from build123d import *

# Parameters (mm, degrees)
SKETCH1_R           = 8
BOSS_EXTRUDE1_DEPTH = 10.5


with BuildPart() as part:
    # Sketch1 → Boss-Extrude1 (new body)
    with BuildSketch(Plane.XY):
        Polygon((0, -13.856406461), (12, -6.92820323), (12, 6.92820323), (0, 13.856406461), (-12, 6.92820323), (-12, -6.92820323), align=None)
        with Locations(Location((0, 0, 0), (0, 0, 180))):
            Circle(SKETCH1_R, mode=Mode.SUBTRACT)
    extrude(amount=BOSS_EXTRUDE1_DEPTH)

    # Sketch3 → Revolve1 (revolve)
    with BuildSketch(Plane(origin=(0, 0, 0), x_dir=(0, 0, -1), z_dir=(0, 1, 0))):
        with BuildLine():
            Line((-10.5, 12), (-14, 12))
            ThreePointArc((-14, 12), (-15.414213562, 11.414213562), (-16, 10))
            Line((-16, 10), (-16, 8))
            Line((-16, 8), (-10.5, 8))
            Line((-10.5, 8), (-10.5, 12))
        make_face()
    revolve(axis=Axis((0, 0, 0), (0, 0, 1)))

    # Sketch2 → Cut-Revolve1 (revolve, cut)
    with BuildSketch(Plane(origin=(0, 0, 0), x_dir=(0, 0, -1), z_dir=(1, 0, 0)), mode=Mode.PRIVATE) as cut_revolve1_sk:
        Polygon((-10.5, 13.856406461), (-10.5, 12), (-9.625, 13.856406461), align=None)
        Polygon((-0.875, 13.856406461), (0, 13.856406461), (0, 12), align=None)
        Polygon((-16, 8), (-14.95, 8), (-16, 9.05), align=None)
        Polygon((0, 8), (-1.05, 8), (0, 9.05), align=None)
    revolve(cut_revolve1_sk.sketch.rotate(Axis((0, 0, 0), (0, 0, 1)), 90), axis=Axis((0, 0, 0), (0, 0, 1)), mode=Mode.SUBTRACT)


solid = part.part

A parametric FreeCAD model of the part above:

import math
import FreeCAD as App
import Part
import Sketcher

V = App.Vector
Q = App.Units.Quantity

doc = App.newDocument("Part")
params = doc.addObject("Spreadsheet::Sheet", "Params")
for row, (alias, value) in enumerate([
    ("sketch1_diameter", "16 mm"),
    ("pad1_length", "10.5 mm"),
    ("sketch2_radius", "2 mm"),
    ("sketch2_width", "2 mm"),
    ("sketch2_height", "3.5 mm"),
    ("revolution_angle", "360 deg"),
    ("sketch3_width", "1.05 mm"),
    ("groove_angle", "360 deg"),
], start=1):
    params.set(f"A{row}", alias)
    params.set(f"B{row}", "=" + value)
    params.setAlias(f"B{row}", alias)

body = doc.addObject("PartDesign::Body", "Body")

sketch1 = body.newObject("Sketcher::SketchObject", "Sketch")
sketch1.AttachmentSupport = (doc.getObject("XY_Plane"), [""])
sketch1.MapMode = "FlatFace"
sketch1.addGeometry(Part.LineSegment(V(0, -14, 0), V(12, -7, 0)), False)
sketch1.addGeometry(Part.LineSegment(V(12, -7, 0), V(12, 7, 0)), False)
sketch1.addGeometry(Part.LineSegment(V(12, 7, 0), V(0, 14, 0)), False)
sketch1.addGeometry(Part.LineSegment(V(0, 14, 0), V(-12, 7, 0)), False)
sketch1.addGeometry(Part.LineSegment(V(-12, 7, 0), V(-12, -7, 0)), False)
sketch1.addGeometry(Part.LineSegment(V(-12, -7, 0), V(0, -14, 0)), False)
sketch1.addGeometry(Part.Circle(V(0, 0, 0), V(0, 0, 1), 8), False)
sketch1.addConstraint(Sketcher.Constraint("Coincident", 0, 2, 1, 1))
sketch1.addConstraint(Sketcher.Constraint("Coincident", 1, 2, 2, 1))
sketch1.addConstraint(Sketcher.Constraint("Coincident", 2, 2, 3, 1))
sketch1.addConstraint(Sketcher.Constraint("Coincident", 3, 2, 4, 1))
sketch1.addConstraint(Sketcher.Constraint("Coincident", 4, 2, 5, 1))
sketch1.addConstraint(Sketcher.Constraint("Coincident", 5, 2, 0, 1))
sketch1.addConstraint(Sketcher.Constraint("Vertical", 1))
sketch1.addConstraint(Sketcher.Constraint("Vertical", 4))
sketch1.addConstraint(Sketcher.Constraint("Coincident", 6, 3, -1, 1))
sketch1.addConstraint(Sketcher.Constraint("Symmetric", 0, 2, 3, 2, -1, 1))
sketch1.addConstraint(Sketcher.Constraint("Symmetric", 2, 2, 5, 2, -1, 1))
sketch1.addConstraint(Sketcher.Constraint("PointOnObject", 2, 2, -2))
sketch1.addConstraint(Sketcher.Constraint("Parallel", 2, 5))
sketch1.addConstraint(Sketcher.Constraint("Horizontal", 1, 2, 3, 2))
sketch1.addConstraint(Sketcher.Constraint("Diameter", 6, 16.0))
sketch1.addConstraint(Sketcher.Constraint("Angle", 0, Q("30 deg")))
sketch1.addConstraint(Sketcher.Constraint("DistanceX", -1, 1, 0, 2, 12.0))
sketch1.addConstraint(Sketcher.Constraint("DistanceY", 1, 1, 1, 2, 13.856406))
sketch1.setExpression("Constraints[14]", "Params.sketch1_diameter")
pad1 = body.newObject("PartDesign::Pad", "Pad")
pad1.Profile = sketch1
pad1.setExpression("Length", "Params.pad1_length")

sketch2 = body.newObject("Sketcher::SketchObject", "Sketch001")
sketch2.AttachmentSupport = (doc.getObject("XZ_Plane"), [""])
sketch2.MapMode = "FlatFace"
sketch2.addGeometry(Part.LineSegment(V(-12, 10.5, 0), V(-12, 14, 0)), False)
sketch2.addGeometry(Part.ArcOfCircle(Part.Circle(V(-10, 14, 0), V(0, 0, 1), 2), math.radians(90), math.radians(180)), False)
sketch2.addGeometry(Part.LineSegment(V(-10, 16, 0), V(-8, 16, 0)), False)
sketch2.addGeometry(Part.LineSegment(V(-8, 16, 0), V(-8, 10.5, 0)), False)
sketch2.addGeometry(Part.LineSegment(V(-8, 10.5, 0), V(-12, 10.5, 0)), False)
sketch2.addConstraint(Sketcher.Constraint("Tangent", 0, 2, 1, 2))
sketch2.addConstraint(Sketcher.Constraint("Tangent", 1, 1, 2, 1))
sketch2.addConstraint(Sketcher.Constraint("Coincident", 2, 2, 3, 1))
sketch2.addConstraint(Sketcher.Constraint("Coincident", 3, 2, 4, 1))
sketch2.addConstraint(Sketcher.Constraint("Coincident", 4, 2, 0, 1))
sketch2.addConstraint(Sketcher.Constraint("Vertical", 0))
sketch2.addConstraint(Sketcher.Constraint("Horizontal", 2))
sketch2.addConstraint(Sketcher.Constraint("Vertical", 3))
sketch2.addConstraint(Sketcher.Constraint("Horizontal", 4))
sketch2.addConstraint(Sketcher.Constraint("Radius", 1, 2.0))
sketch2.addConstraint(Sketcher.Constraint("DistanceX", 2, 1, 2, 2, 2.0))
sketch2.addConstraint(Sketcher.Constraint("DistanceY", 0, 1, 0, 2, 3.5))
sketch2.addConstraint(Sketcher.Constraint("DistanceX", 1, 3, -1, 1, 10.0))
sketch2.addConstraint(Sketcher.Constraint("DistanceY", -1, 1, 1, 3, 14.0))
sketch2.setExpression("Constraints[9]", "Params.sketch2_radius")
sketch2.setExpression("Constraints[10]", "Params.sketch2_width")
sketch2.setExpression("Constraints[11]", "Params.sketch2_height")
revolution = body.newObject("PartDesign::Revolution", "Revolution")
revolution.Profile = sketch2
revolution.ReferenceAxis = (sketch2, ["V_Axis"])
revolution.setExpression("Angle", "Params.revolution_angle")

sketch3 = body.newObject("Sketcher::SketchObject", "Sketch002")
sketch3.AttachmentSupport = (doc.getObject("YZ_Plane"), [""])
sketch3.MapMode = "FlatFace"
sketch3.addGeometry(Part.LineSegment(V(13.9, 10.5, 0), V(12, 10.5, 0)), False)
sketch3.addGeometry(Part.LineSegment(V(12, 10.5, 0), V(13.9, 9.6, 0)), False)
sketch3.addGeometry(Part.LineSegment(V(13.9, 9.6, 0), V(13.9, 10.5, 0)), False)
sketch3.addGeometry(Part.LineSegment(V(13.9, 0, 0), V(13.9, 0.9, 0)), False)
sketch3.addGeometry(Part.LineSegment(V(13.9, 0.9, 0), V(12, 0, 0)), False)
sketch3.addGeometry(Part.LineSegment(V(12, 0, 0), V(13.9, 0, 0)), False)
sketch3.addGeometry(Part.LineSegment(V(8, 16, 0), V(8, 14.9, 0)), False)
sketch3.addGeometry(Part.LineSegment(V(8, 14.9, 0), V(9.1, 16, 0)), False)
sketch3.addGeometry(Part.LineSegment(V(9.1, 16, 0), V(8, 16, 0)), False)
sketch3.addGeometry(Part.LineSegment(V(8, 1.1, 0), V(8, 0, 0)), False)
sketch3.addGeometry(Part.LineSegment(V(8, 0, 0), V(9.1, 0, 0)), False)
sketch3.addGeometry(Part.LineSegment(V(9.1, 0, 0), V(8, 1.1, 0)), False)
sketch3.addConstraint(Sketcher.Constraint("Coincident", 0, 2, 1, 1))
sketch3.addConstraint(Sketcher.Constraint("Coincident", 1, 2, 2, 1))
sketch3.addConstraint(Sketcher.Constraint("Coincident", 2, 2, 0, 1))
sketch3.addConstraint(Sketcher.Constraint("Coincident", 3, 2, 4, 1))
sketch3.addConstraint(Sketcher.Constraint("Coincident", 4, 2, 5, 1))
sketch3.addConstraint(Sketcher.Constraint("Coincident", 5, 2, 3, 1))
sketch3.addConstraint(Sketcher.Constraint("Coincident", 6, 2, 7, 1))
sketch3.addConstraint(Sketcher.Constraint("Coincident", 7, 2, 8, 1))
sketch3.addConstraint(Sketcher.Constraint("Coincident", 8, 2, 6, 1))
sketch3.addConstraint(Sketcher.Constraint("Coincident", 9, 2, 10, 1))
sketch3.addConstraint(Sketcher.Constraint("Coincident", 10, 2, 11, 1))
sketch3.addConstraint(Sketcher.Constraint("Coincident", 11, 2, 9, 1))
sketch3.addConstraint(Sketcher.Constraint("Horizontal", 0))
sketch3.addConstraint(Sketcher.Constraint("Vertical", 2))
sketch3.addConstraint(Sketcher.Constraint("Vertical", 3))
sketch3.addConstraint(Sketcher.Constraint("Horizontal", 5))
sketch3.addConstraint(Sketcher.Constraint("Vertical", 6))
sketch3.addConstraint(Sketcher.Constraint("Horizontal", 8))
sketch3.addConstraint(Sketcher.Constraint("Vertical", 9))
sketch3.addConstraint(Sketcher.Constraint("Horizontal", 10))
sketch3.addConstraint(Sketcher.Constraint("PointOnObject", 4, 2, -1))
sketch3.addConstraint(Sketcher.Constraint("PointOnObject", 9, 2, -1))
sketch3.addConstraint(Sketcher.Constraint("Perpendicular", 7, 11))
sketch3.addConstraint(Sketcher.Constraint("Vertical", 2, 2, 3, 2))
sketch3.addConstraint(Sketcher.Constraint("Vertical", 0, 2, 4, 2))
sketch3.addConstraint(Sketcher.Constraint("Vertical", 8, 2, 9, 2))
sketch3.addConstraint(Sketcher.Constraint("Vertical", 7, 2, 10, 2))
sketch3.addConstraint(Sketcher.Constraint("Equal", 2, 3))
sketch3.addConstraint(Sketcher.Constraint("Equal", 10, 6))
sketch3.addConstraint(Sketcher.Constraint("DistanceX", -1, 1, 0, 2, 12.0))
sketch3.addConstraint(Sketcher.Constraint("DistanceX", -1, 1, 6, 2, 8.0))
sketch3.addConstraint(Sketcher.Constraint("DistanceY", -1, 1, 7, 2, 16.0))
sketch3.addConstraint(Sketcher.Constraint("DistanceX", 8, 2, 8, 1, 1.05))
sketch3.addConstraint(Sketcher.Constraint("DistanceY", -1, 1, 0, 2, 10.5))
sketch3.addConstraint(Sketcher.Constraint("DistanceY", 2, 1, 2, 2, 0.875))
sketch3.addConstraint(Sketcher.Constraint("DistanceX", 0, 2, 0, 1, 1.856406))
sketch3.setExpression("Constraints[32]", "Params.sketch3_width")
groove = body.newObject("PartDesign::Groove", "Groove")
groove.Profile = sketch3
groove.ReferenceAxis = (sketch3, ["V_Axis"])
groove.setExpression("Angle", "Params.groove_angle")

doc.recompute()
